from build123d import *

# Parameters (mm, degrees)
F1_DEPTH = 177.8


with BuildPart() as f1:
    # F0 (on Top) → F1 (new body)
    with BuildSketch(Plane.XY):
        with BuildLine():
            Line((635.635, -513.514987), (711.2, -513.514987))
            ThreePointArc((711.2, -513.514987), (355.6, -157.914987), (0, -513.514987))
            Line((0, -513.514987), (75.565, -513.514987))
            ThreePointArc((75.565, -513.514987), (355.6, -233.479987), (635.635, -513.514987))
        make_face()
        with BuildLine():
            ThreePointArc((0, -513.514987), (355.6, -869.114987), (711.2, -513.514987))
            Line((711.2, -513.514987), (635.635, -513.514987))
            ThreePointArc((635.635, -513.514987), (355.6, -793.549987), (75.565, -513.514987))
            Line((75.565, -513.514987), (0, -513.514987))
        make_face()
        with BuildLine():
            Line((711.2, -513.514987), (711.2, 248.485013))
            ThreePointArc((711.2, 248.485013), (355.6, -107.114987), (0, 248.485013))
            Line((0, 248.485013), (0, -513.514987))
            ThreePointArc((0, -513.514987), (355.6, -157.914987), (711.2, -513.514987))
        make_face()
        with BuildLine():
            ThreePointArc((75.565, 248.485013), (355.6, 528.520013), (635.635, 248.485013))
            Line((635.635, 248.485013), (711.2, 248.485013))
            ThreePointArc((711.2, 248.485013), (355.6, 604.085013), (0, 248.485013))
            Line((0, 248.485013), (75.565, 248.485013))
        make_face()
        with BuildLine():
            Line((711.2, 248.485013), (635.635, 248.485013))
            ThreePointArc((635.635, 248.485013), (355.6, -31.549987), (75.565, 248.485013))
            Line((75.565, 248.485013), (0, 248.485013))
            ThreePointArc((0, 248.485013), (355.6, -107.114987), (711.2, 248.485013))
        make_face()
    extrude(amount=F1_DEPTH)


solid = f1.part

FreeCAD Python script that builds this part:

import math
import FreeCAD as App
import Part
import Sketcher

V = App.Vector
Q = App.Units.Quantity

doc = App.newDocument("Part")
body = doc.addObject("PartDesign::Body", "Body")

sketch1 = body.newObject("Sketcher::SketchObject", "Sketch")
sketch1.AttachmentSupport = (doc.getObject("XY_Plane"), [""])
sketch1.MapMode = "FlatFace"
sketch1.addGeometry(Part.ArcOfCircle(Part.Circle(V(356, -514, 0), V(0, 0, 1), 356), math.radians(180), math.radians(360)), False)
sketch1.addGeometry(Part.LineSegment(V(711, -514, 0), V(711, 248, 0)), False)
sketch1.addGeometry(Part.ArcOfCircle(Part.Circle(V(356, 248, 0), V(0, 0, 1), 356), math.radians(0), math.radians(180)), False)
sketch1.addGeometry(Part.LineSegment(V(0, 248, 0), V(0, -514, 0)), False)
sketch1.addGeometry(Part.Circle(V(356, -514, 0), V(0, 0, 1), 280), False)
sketch1.addGeometry(Part.Circle(V(356, 248, 0), V(0, 0, 1), 280), False)
sketch1.addConstraint(Sketcher.Constraint("Tangent", 0, 2, 1, 1))
sketch1.addConstraint(Sketcher.Constraint("Tangent", 1, 2, 2, 1))
sketch1.addConstraint(Sketcher.Constraint("Tangent", 2, 2, 3, 1))
sketch1.addConstraint(Sketcher.Constraint("Tangent", 3, 2, 0, 1))
sketch1.addConstraint(Sketcher.Constraint("Vertical", 1))
sketch1.addConstraint(Sketcher.Constraint("Vertical", 3))
sketch1.addConstraint(Sketcher.Constraint("Coincident", 4, 3, 0, 3))
sketch1.addConstraint(Sketcher.Constraint("Coincident", 5, 3, 2, 3))
sketch1.addConstraint(Sketcher.Constraint("Equal", 4, 5))
sketch1.addConstraint(Sketcher.Constraint("PointOnObject", 2, 2, -2))
sketch1.addConstraint(Sketcher.Constraint("Radius", 0, Q("14 in")))
sketch1.addConstraint(Sketcher.Constraint("Diameter", 4, Q("22.05 in")))
sketch1.addConstraint(Sketcher.Constraint("DistanceY", 1, 1, 1, 2, Q("30 in")))
sketch1.addConstraint(Sketcher.Constraint("DistanceY", 0, 3, -1, 1, Q("513.514987 mm")))
pad1 = body.newObject("PartDesign::Pad", "Pad")
pad1.Profile = sketch1
pad1.Length = Q("7 in")

doc.recompute()
